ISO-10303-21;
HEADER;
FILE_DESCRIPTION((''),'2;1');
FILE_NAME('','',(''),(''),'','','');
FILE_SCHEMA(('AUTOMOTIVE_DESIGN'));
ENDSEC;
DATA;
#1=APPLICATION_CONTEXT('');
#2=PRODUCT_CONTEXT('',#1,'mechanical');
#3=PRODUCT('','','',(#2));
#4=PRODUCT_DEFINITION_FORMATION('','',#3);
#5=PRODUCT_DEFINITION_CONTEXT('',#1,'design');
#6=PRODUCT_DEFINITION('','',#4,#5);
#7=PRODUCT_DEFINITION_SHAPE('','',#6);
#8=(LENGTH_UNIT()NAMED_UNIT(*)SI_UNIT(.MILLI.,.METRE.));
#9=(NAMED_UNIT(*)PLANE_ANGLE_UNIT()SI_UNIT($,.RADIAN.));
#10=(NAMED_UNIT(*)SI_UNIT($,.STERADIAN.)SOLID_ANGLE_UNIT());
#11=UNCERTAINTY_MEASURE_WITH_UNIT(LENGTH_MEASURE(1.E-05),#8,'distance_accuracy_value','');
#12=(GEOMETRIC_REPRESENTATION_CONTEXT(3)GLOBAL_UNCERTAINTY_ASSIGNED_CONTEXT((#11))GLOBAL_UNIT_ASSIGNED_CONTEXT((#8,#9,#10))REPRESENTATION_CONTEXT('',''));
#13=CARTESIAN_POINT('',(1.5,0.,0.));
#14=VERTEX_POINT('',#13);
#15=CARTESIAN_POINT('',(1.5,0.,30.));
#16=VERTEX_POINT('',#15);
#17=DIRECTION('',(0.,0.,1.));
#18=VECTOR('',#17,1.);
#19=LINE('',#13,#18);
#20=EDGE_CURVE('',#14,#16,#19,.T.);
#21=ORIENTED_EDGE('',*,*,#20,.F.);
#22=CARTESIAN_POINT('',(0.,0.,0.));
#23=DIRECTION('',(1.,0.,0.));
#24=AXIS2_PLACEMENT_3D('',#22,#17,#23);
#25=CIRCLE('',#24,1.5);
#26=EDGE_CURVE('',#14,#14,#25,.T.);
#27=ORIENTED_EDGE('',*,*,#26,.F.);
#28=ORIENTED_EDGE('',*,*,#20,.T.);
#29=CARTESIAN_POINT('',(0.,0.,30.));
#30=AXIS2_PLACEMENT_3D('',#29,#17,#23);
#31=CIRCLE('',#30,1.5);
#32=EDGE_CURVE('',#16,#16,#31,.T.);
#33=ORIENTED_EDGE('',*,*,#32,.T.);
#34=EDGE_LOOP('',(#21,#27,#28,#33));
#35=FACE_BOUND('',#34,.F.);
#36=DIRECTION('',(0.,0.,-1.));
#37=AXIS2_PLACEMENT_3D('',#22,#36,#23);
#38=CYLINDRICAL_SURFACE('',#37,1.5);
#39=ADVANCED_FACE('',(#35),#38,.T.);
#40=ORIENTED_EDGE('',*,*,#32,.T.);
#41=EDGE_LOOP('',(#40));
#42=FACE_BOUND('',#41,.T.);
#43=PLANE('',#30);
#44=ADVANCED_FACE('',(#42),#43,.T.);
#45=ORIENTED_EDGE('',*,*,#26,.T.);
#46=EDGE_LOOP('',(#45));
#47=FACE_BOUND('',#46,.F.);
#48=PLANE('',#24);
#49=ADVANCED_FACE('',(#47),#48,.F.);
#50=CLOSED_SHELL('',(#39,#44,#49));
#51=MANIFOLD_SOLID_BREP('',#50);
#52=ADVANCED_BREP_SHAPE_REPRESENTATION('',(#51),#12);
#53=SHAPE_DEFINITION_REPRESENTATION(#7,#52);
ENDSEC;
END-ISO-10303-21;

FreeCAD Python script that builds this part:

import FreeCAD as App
import Part
import Sketcher
from FreeCAD import Vector

doc = App.newDocument("Part")
body = doc.addObject("PartDesign::Body", "Body")

# Sketch on XY plane
sketch1 = body.newObject("Sketcher::SketchObject", "Sketch")
sketch1.AttachmentSupport = (doc.getObject("XY_Plane"), [""])
sketch1.MapMode = "FlatFace"
sketch1.addGeometry(Part.Circle(Vector(0, 0, 0), Vector(0, 0, 1), 1.5), False)
sketch1.addConstraint([
    Sketcher.Constraint("Coincident", 0, 3, -1, 1),
    Sketcher.Constraint("Diameter", 0, 3.0),
])
pad1 = body.newObject("PartDesign::Pad", "Pad")
pad1.Profile = sketch1
pad1.Length = 30

doc.recompute()
